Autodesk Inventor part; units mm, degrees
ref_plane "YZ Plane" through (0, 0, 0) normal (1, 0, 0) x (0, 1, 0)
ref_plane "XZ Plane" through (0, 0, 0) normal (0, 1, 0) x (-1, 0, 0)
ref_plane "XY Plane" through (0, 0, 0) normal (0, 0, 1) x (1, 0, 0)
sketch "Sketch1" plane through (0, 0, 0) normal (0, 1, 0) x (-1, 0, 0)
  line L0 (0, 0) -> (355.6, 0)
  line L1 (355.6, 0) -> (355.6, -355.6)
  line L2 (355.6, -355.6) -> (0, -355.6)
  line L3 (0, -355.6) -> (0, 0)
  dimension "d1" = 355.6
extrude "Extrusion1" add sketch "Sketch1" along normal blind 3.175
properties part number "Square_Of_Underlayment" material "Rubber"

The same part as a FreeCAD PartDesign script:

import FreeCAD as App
import Part
import Sketcher
Q = App.Units.Quantity

doc = App.newDocument("Part")
body = doc.addObject("PartDesign::Body", "Body")

# Sketch on XZ plane
sketch1 = doc.addObject("Sketcher::SketchObject", "Sketch")
body.addObject(sketch1)
sketch1.AttachmentSupport = (doc.XZ_Plane, [""])
sketch1.MapMode = "FlatFace"
sketch1.addGeometry(Part.LineSegment(App.Vector(-356, 0, 0), App.Vector(0, 0, 0)), False)
sketch1.addGeometry(Part.LineSegment(App.Vector(0, 0, 0), App.Vector(0, -356, 0)), False)
sketch1.addGeometry(Part.LineSegment(App.Vector(0, -356, 0), App.Vector(-356, -356, 0)), False)
sketch1.addGeometry(Part.LineSegment(App.Vector(-356, -356, 0), App.Vector(-356, 0, 0)), False)
sketch1.addConstraint(Sketcher.Constraint("Coincident", 0, 2, 1, 1))
sketch1.addConstraint(Sketcher.Constraint("Coincident", 1, 2, 2, 1))
sketch1.addConstraint(Sketcher.Constraint("Coincident", 2, 2, 3, 1))
sketch1.addConstraint(Sketcher.Constraint("Coincident", 3, 2, 0, 1))
sketch1.addConstraint(Sketcher.Constraint("Horizontal", 0))
sketch1.addConstraint(Sketcher.Constraint("Vertical", 1))
sketch1.addConstraint(Sketcher.Constraint("Horizontal", 2))
sketch1.addConstraint(Sketcher.Constraint("Vertical", 3))
sketch1.addConstraint(Sketcher.Constraint("Coincident", 0, 2, -1, 1))
sketch1.addConstraint(Sketcher.Constraint("Equal", 2, 1))
sketch1.addConstraint(Sketcher.Constraint("DistanceX", 0, 1, 0, 2, Q("14 in")))
pad1 = doc.addObject("PartDesign::Pad", "Pad")
body.addObject(pad1)
pad1.Profile = sketch1
pad1.Length = Q("0.125 in")
pad1.Reversed = True

doc.recompute()
